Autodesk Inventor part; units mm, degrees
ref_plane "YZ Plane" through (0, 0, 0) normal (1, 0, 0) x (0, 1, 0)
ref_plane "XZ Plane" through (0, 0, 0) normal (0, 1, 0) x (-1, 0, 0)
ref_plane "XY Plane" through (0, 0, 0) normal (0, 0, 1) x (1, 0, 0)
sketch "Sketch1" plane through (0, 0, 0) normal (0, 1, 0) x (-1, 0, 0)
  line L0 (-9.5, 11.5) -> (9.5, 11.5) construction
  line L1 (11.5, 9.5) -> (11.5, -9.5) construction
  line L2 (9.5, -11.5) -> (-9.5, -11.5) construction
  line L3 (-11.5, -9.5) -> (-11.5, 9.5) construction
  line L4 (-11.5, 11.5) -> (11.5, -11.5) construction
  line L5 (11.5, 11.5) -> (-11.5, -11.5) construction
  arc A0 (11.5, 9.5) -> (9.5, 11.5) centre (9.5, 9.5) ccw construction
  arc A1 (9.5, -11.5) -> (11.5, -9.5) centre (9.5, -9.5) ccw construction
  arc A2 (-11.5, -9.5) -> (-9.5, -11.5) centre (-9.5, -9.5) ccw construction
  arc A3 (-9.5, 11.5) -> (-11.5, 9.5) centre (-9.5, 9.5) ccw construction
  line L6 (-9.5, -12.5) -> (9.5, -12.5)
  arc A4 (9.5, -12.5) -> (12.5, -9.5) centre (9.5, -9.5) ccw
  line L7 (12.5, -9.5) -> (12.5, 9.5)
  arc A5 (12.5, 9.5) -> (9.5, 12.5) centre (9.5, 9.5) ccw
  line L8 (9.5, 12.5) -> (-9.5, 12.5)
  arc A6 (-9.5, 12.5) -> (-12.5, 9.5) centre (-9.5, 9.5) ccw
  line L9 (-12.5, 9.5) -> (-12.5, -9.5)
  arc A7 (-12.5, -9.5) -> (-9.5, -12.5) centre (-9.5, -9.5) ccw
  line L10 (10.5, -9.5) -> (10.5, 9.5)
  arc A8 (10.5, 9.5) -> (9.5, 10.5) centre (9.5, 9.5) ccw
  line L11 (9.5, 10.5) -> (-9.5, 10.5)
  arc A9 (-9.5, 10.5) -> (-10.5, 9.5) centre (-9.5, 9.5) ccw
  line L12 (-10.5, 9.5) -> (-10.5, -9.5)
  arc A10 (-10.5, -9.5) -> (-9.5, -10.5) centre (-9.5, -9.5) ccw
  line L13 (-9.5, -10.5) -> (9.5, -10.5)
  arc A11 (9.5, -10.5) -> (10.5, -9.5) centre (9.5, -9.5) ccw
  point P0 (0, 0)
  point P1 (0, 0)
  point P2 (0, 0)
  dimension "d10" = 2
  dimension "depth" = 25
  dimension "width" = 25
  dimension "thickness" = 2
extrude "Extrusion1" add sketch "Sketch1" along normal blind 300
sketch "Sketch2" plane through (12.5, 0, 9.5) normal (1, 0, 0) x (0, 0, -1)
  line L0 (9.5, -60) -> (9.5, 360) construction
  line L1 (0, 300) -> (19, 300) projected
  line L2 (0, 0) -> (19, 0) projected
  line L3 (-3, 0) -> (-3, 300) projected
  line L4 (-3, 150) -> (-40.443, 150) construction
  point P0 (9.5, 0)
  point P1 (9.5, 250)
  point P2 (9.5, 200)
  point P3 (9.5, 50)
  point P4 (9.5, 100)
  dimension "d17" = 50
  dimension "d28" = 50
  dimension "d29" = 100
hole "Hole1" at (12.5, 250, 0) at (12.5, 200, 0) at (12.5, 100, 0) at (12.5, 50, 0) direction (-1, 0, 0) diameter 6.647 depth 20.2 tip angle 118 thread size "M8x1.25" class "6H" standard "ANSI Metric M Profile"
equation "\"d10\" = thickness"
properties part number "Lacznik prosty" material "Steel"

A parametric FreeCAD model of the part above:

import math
import FreeCAD as App
import Part
import Sketcher
Q = App.Units.Quantity

doc = App.newDocument("Part")
body = doc.addObject("PartDesign::Body", "Body")

# Sketch on XZ plane
sketch1 = body.newObject("Sketcher::SketchObject", "Sketch")
sketch1.AttachmentSupport = (doc.getObject("XZ_Plane"), [""])
sketch1.MapMode = "FlatFace"
sketch1.addGeometry([
    Part.ArcOfCircle(Part.Circle(App.Vector(9.5, -9.5, 0), App.Vector(0, 0, 1), 3), math.radians(-90), math.radians(0)),  # 0
    Part.LineSegment(App.Vector(9.5, -12.5, 0), App.Vector(-9.5, -12.5, 0)),  # 1
    Part.ArcOfCircle(Part.Circle(App.Vector(-9.5, -9.5, 0), App.Vector(0, 0, 1), 3), math.radians(180), math.radians(270)),  # 2
    Part.LineSegment(App.Vector(-12.5, -9.5, 0), App.Vector(-12.5, 9.5, 0)),  # 3
    Part.ArcOfCircle(Part.Circle(App.Vector(-9.5, 9.5, 0), App.Vector(0, 0, 1), 3), math.radians(90), math.radians(180)),  # 4
    Part.LineSegment(App.Vector(-9.5, 12.5, 0), App.Vector(9.5, 12.5, 0)),  # 5
    Part.ArcOfCircle(Part.Circle(App.Vector(9.5, 9.5, 0), App.Vector(0, 0, 1), 3), math.radians(0), math.radians(90)),  # 6
    Part.LineSegment(App.Vector(12.5, 9.5, 0), App.Vector(12.5, -9.5, 0)),  # 7
    Part.LineSegment(App.Vector(-10.5, 9.5, 0), App.Vector(-10.5, -9.5, 0)),  # 8
    Part.ArcOfCircle(Part.Circle(App.Vector(-9.5, -9.5, 0), App.Vector(0, 0, 1), 1), math.radians(180), math.radians(270)),  # 9
    Part.LineSegment(App.Vector(-9.5, -10.5, 0), App.Vector(9.5, -10.5, 0)),  # 10
    Part.ArcOfCircle(Part.Circle(App.Vector(9.5, -9.5, 0), App.Vector(0, 0, 1), 1), math.radians(-90), math.radians(0)),  # 11
    Part.LineSegment(App.Vector(10.5, -9.5, 0), App.Vector(10.5, 9.5, 0)),  # 12
    Part.ArcOfCircle(Part.Circle(App.Vector(9.5, 9.5, 0), App.Vector(0, 0, 1), 1), math.radians(0), math.radians(90)),  # 13
    Part.LineSegment(App.Vector(9.5, 10.5, 0), App.Vector(-9.5, 10.5, 0)),  # 14
    Part.ArcOfCircle(Part.Circle(App.Vector(-9.5, 9.5, 0), App.Vector(0, 0, 1), 1), math.radians(90), math.radians(180)),  # 15
], False)
sketch1.addConstraint([
    Sketcher.Constraint("Tangent", 0, 1, 1, 1),
    Sketcher.Constraint("Tangent", 1, 2, 2, 2),
    Sketcher.Constraint("Tangent", 2, 1, 3, 1),
    Sketcher.Constraint("Tangent", 3, 2, 4, 2),
    Sketcher.Constraint("Tangent", 4, 1, 5, 1),
    Sketcher.Constraint("Tangent", 5, 2, 6, 2),
    Sketcher.Constraint("Tangent", 6, 1, 7, 1),
    Sketcher.Constraint("Tangent", 7, 2, 0, 2),
    Sketcher.Constraint("Tangent", 8, 2, 9, 1),
    Sketcher.Constraint("Tangent", 9, 2, 10, 1),
    Sketcher.Constraint("Tangent", 10, 2, 11, 1),
    Sketcher.Constraint("Tangent", 11, 2, 12, 1),
    Sketcher.Constraint("Tangent", 12, 2, 13, 1),
    Sketcher.Constraint("Tangent", 13, 2, 14, 1),
    Sketcher.Constraint("Tangent", 14, 2, 15, 1),
    Sketcher.Constraint("Tangent", 15, 2, 8, 1),
    Sketcher.Constraint("Horizontal", 1),
    Sketcher.Constraint("Vertical", 3),
    Sketcher.Constraint("Horizontal", 5),
    Sketcher.Constraint("Vertical", 7),
    Sketcher.Constraint("Vertical", 8),
    Sketcher.Constraint("Horizontal", 10),
    Sketcher.Constraint("Vertical", 12),
    Sketcher.Constraint("Horizontal", 14),
    Sketcher.Constraint("Coincident", 9, 3, 2, 3),
    Sketcher.Constraint("Coincident", 11, 3, 0, 3),
    Sketcher.Constraint("Coincident", 13, 3, 6, 3),
    Sketcher.Constraint("Equal", 0, 2),
    Sketcher.Constraint("Equal", 2, 4),
    Sketcher.Constraint("Equal", 4, 6),
    Sketcher.Constraint("Equal", 13, 15),
    Sketcher.Constraint("Symmetric", 0, 3, 4, 3, -1, 1),
    Sketcher.Constraint("Equal", 14, 3),
    Sketcher.Constraint("Radius", 9, Q("1 mm")),
    Sketcher.Constraint("Radius", 0, Q("3 mm")),
    Sketcher.Constraint("DistanceX", 1, 2, 1, 1, Q("19 mm")),
])
pad1 = body.newObject("PartDesign::Pad", "Pad")
pad1.Profile = sketch1
pad1.Length = 300
pad1.Reversed = True

# Sketch on YZ plane
sketch2 = body.newObject("Sketcher::SketchObject", "Sketch001")
sketch2.AttachmentSupport = (doc.getObject("YZ_Plane"), [""])
sketch2.MapMode = "FlatFace"
sketch2.AttachmentOffset = App.Placement(App.Vector(0, 0, 12.5), App.Rotation())
sketch2.addGeometry([
    Part.Circle(App.Vector(250, 0, 0), App.Vector(0, 0, 1), 3.3235),
    Part.Circle(App.Vector(200, 0, 0), App.Vector(0, 0, 1), 3.3235),
    Part.Circle(App.Vector(100, 0, 0), App.Vector(0, 0, 1), 3.3235),
    Part.Circle(App.Vector(50, 0, 0), App.Vector(0, 0, 1), 3.3235),
], False)
sketch2.addConstraint([
    Sketcher.Constraint("Equal", 0, 1),
    Sketcher.Constraint("Equal", 1, 2),
    Sketcher.Constraint("Equal", 2, 3),
    Sketcher.Constraint("PointOnObject", 0, 3, -1),
    Sketcher.Constraint("PointOnObject", 1, 3, -1),
    Sketcher.Constraint("PointOnObject", 2, 3, -1),
    Sketcher.Constraint("PointOnObject", 3, 3, -1),
    Sketcher.Constraint("Diameter", 0, Q("6.647 mm")),
    Sketcher.Constraint("DistanceX", -1, 1, 0, 3, Q("250 mm")),
    Sketcher.Constraint("DistanceX", -1, 1, 1, 3, Q("200 mm")),
    Sketcher.Constraint("DistanceX", -1, 1, 2, 3, Q("100 mm")),
    Sketcher.Constraint("DistanceX", -1, 1, 3, 3, Q("50 mm")),
])
doc.recompute()
hole = body.newObject("PartDesign::Hole", "Hole")
hole.Profile = sketch2
hole.ThreadType = "None"
hole.Diameter = 6.647
hole.DepthType = "Dimension"
hole.Depth = 20.2
hole.DrillPoint = "Angled"
hole.DrillPointAngle = 118

doc.recompute()
